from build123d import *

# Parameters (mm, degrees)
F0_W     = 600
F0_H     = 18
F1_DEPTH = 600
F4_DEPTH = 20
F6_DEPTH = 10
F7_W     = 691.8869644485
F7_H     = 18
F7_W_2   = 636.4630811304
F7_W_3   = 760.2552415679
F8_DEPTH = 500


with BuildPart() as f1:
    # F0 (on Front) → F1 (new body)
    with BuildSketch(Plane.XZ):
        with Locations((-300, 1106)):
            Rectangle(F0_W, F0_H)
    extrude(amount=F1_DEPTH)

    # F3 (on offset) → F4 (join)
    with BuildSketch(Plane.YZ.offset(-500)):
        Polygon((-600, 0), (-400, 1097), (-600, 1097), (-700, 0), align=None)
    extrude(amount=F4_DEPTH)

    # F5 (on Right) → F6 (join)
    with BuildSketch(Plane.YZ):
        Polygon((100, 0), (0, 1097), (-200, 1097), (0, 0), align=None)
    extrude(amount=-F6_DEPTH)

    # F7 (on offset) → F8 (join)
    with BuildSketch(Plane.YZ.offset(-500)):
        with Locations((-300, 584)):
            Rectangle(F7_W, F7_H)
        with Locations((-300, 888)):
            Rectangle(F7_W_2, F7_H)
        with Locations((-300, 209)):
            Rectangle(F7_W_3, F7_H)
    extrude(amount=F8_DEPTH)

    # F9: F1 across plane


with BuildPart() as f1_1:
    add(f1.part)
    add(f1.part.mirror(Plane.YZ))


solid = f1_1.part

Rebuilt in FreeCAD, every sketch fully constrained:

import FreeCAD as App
import Part
import Sketcher
from FreeCAD import Vector

doc = App.newDocument("Part")
body = doc.addObject("PartDesign::Body", "Body")

sketch1 = body.newObject("Sketcher::SketchObject", "Sketch")
sketch1.AttachmentSupport = (doc.getObject("XZ_Plane"), [""])
sketch1.MapMode = "FlatFace"
sketch1.addGeometry([
    Part.LineSegment(Vector(-600, 1115, 0), Vector(-600, 1097, 0)),
    Part.LineSegment(Vector(-600, 1097, 0), Vector(0, 1097, 0)),
    Part.LineSegment(Vector(0, 1097, 0), Vector(0, 1115, 0)),
    Part.LineSegment(Vector(0, 1115, 0), Vector(-600, 1115, 0)),
], False)
sketch1.addConstraint([
    Sketcher.Constraint("Coincident", 0, 2, 1, 1),
    Sketcher.Constraint("Coincident", 1, 2, 2, 1),
    Sketcher.Constraint("Coincident", 2, 2, 3, 1),
    Sketcher.Constraint("Coincident", 3, 2, 0, 1),
    Sketcher.Constraint("Vertical", 0),
    Sketcher.Constraint("Horizontal", 1),
    Sketcher.Constraint("Vertical", 2),
    Sketcher.Constraint("Horizontal", 3),
    Sketcher.Constraint("PointOnObject", 1, 2, -2),
    Sketcher.Constraint("DistanceX", 1, 1, 1, 2, 600.0),
    Sketcher.Constraint("DistanceY", 0, 2, 0, 1, 18.0),
    Sketcher.Constraint("DistanceY", -1, 1, 0, 2, 1097.0),
])
pad1 = body.newObject("PartDesign::Pad", "Pad")
pad1.Profile = sketch1
pad1.Length = 600

sketch2 = body.newObject("Sketcher::SketchObject", "Sketch001")
sketch2.AttachmentSupport = (doc.getObject("YZ_Plane"), [""])
sketch2.MapMode = "FlatFace"
sketch2.AttachmentOffset = App.Placement(Vector(0, 0, -500), App.Rotation())
sketch2.addGeometry([
    Part.LineSegment(Vector(-600, 0, 0), Vector(-400, 1097, 0)),
    Part.LineSegment(Vector(-400, 1097, 0), Vector(-600, 1097, 0)),
    Part.LineSegment(Vector(-600, 1097, 0), Vector(-700, 0, 0)),
    Part.LineSegment(Vector(-700, 0, 0), Vector(-600, 0, 0)),
], False)
sketch2.addConstraint([
    Sketcher.Constraint("Coincident", 0, 2, 1, 1),
    Sketcher.Constraint("Coincident", 1, 2, 2, 1),
    Sketcher.Constraint("Coincident", 2, 2, 3, 1),
    Sketcher.Constraint("Coincident", 3, 2, 0, 1),
    Sketcher.Constraint("Horizontal", 1),
    Sketcher.Constraint("Horizontal", 3),
    Sketcher.Constraint("PointOnObject", 2, 2, -1),
    Sketcher.Constraint("Vertical", 1, 2, 3, 2),
    Sketcher.Constraint("DistanceX", 1, 2, 1, 1, 200.0),
    Sketcher.Constraint("DistanceX", 3, 1, 3, 2, 100.0),
    Sketcher.Constraint("DistanceX", 0, 2, -1, 1, 400.0),
    Sketcher.Constraint("DistanceY", -1, 1, 0, 2, 1097.0),
])
pad2 = body.newObject("PartDesign::Pad", "Pad001")
pad2.Profile = sketch2
pad2.Length = 20

sketch3 = body.newObject("Sketcher::SketchObject", "Sketch002")
sketch3.AttachmentSupport = (doc.getObject("YZ_Plane"), [""])
sketch3.MapMode = "FlatFace"
sketch3.addGeometry([
    Part.LineSegment(Vector(100, 0, 0), Vector(0, 1097, 0)),
    Part.LineSegment(Vector(0, 1097, 0), Vector(-200, 1097, 0)),
    Part.LineSegment(Vector(-200, 1097, 0), Vector(0, 0, 0)),
    Part.LineSegment(Vector(0, 0, 0), Vector(100, 0, 0)),
], False)
sketch3.addConstraint([
    Sketcher.Constraint("Coincident", 0, 2, 1, 1),
    Sketcher.Constraint("Coincident", 1, 2, 2, 1),
    Sketcher.Constraint("Coincident", 2, 2, 3, 1),
    Sketcher.Constraint("Coincident", 3, 2, 0, 1),
    Sketcher.Constraint("Horizontal", 1),
    Sketcher.Constraint("Horizontal", 3),
    Sketcher.Constraint("Coincident", 2, 2, -1, 1),
    Sketcher.Constraint("PointOnObject", 0, 2, -2),
    Sketcher.Constraint("DistanceX", 1, 2, 1, 1, 200.0),
    Sketcher.Constraint("DistanceX", 3, 1, 3, 2, 100.0),
    Sketcher.Constraint("DistanceY", -1, 1, 0, 2, 1097.0),
])
pad3 = body.newObject("PartDesign::Pad", "Pad002")
pad3.Profile = sketch3
pad3.Length = 10
pad3.Reversed = True

sketch4 = body.newObject("Sketcher::SketchObject", "Sketch003")
sketch4.AttachmentSupport = (doc.getObject("YZ_Plane"), [""])
sketch4.MapMode = "FlatFace"
sketch4.AttachmentOffset = App.Placement(Vector(0, 0, -500), App.Rotation())
sketch4.addGeometry([
    Part.LineSegment(Vector(-645.943482, 593, 0), Vector(-645.943482, 575, 0)),
    Part.LineSegment(Vector(-645.943482, 575, 0), Vector(45.943482, 575, 0)),
    Part.LineSegment(Vector(45.943482, 575, 0), Vector(45.943482, 593, 0)),
    Part.LineSegment(Vector(45.943482, 593, 0), Vector(-645.943482, 593, 0)),
    Part.LineSegment(Vector(-618.231541, 897, 0), Vector(-618.231541, 879, 0)),
    Part.LineSegment(Vector(-618.231541, 879, 0), Vector(18.231541, 879, 0)),
    Part.LineSegment(Vector(18.231541, 879, 0), Vector(18.231541, 897, 0)),
    Part.LineSegment(Vector(18.231541, 897, 0), Vector(-618.231541, 897, 0)),
    Part.LineSegment(Vector(-680.127621, 218, 0), Vector(-680.127621, 200, 0)),
    Part.LineSegment(Vector(-680.127621, 200, 0), Vector(80.127621, 200, 0)),
    Part.LineSegment(Vector(80.127621, 200, 0), Vector(80.127621, 218, 0)),
    Part.LineSegment(Vector(80.127621, 218, 0), Vector(-680.127621, 218, 0)),
], False)
sketch4.addConstraint([
    Sketcher.Constraint("Coincident", 0, 2, 1, 1),
    Sketcher.Constraint("Coincident", 1, 2, 2, 1),
    Sketcher.Constraint("Coincident", 2, 2, 3, 1),
    Sketcher.Constraint("Coincident", 3, 2, 0, 1),
    Sketcher.Constraint("Coincident", 4, 2, 5, 1),
    Sketcher.Constraint("Coincident", 5, 2, 6, 1),
    Sketcher.Constraint("Coincident", 6, 2, 7, 1),
    Sketcher.Constraint("Coincident", 7, 2, 4, 1),
    Sketcher.Constraint("Coincident", 8, 2, 9, 1),
    Sketcher.Constraint("Coincident", 9, 2, 10, 1),
    Sketcher.Constraint("Coincident", 10, 2, 11, 1),
    Sketcher.Constraint("Coincident", 11, 2, 8, 1),
    Sketcher.Constraint("Vertical", 0),
    Sketcher.Constraint("Horizontal", 1),
    Sketcher.Constraint("Vertical", 2),
    Sketcher.Constraint("Horizontal", 3),
    Sketcher.Constraint("Vertical", 4),
    Sketcher.Constraint("Horizontal", 5),
    Sketcher.Constraint("Vertical", 6),
    Sketcher.Constraint("Horizontal", 7),
    Sketcher.Constraint("Vertical", 8),
    Sketcher.Constraint("Horizontal", 9),
    Sketcher.Constraint("Vertical", 10),
    Sketcher.Constraint("Horizontal", 11),
    Sketcher.Constraint("Equal", 2, 4),
    Sketcher.Constraint("Equal", 6, 8),
    Sketcher.Constraint("DistanceY", 0, 2, 0, 1, 18.0),
    Sketcher.Constraint("DistanceY", -1, 1, 0, 2, 575.0),
    Sketcher.Constraint("DistanceY", -1, 1, 4, 2, 879.0),
    Sketcher.Constraint("DistanceY", -1, 1, 8, 2, 200.0),
    Sketcher.Constraint("DistanceX", 5, 1, 5, 2, 636.463081),
    Sketcher.Constraint("DistanceX", 9, 1, 9, 2, 760.255242),
    Sketcher.Constraint("DistanceX", 1, 1, 1, 2, 691.886964),
    Sketcher.Constraint("DistanceX", 4, 2, -1, 1, 618.231541),
    Sketcher.Constraint("DistanceX", 8, 2, -1, 1, 680.127621),
    Sketcher.Constraint("DistanceX", 3, 2, 4, 2, 27.711942),
])
pad4 = body.newObject("PartDesign::Pad", "Pad003")
pad4.Profile = sketch4
pad4.Length = 500
body2 = doc.addObject("PartDesign::Body", "Body001")
doc.recompute()

body2.BaseFeature = body
doc.recompute()

mirroring = doc.addObject("Part::Mirroring", "Mirroring")
mirroring.Source = body
mirroring.Base = Vector(0, 0, 0)
mirroring.Normal = Vector(1, 0, 0)
body3 = doc.addObject("PartDesign::Body", "Body002")
body3.BaseFeature = mirroring
boolean = body2.newObject("PartDesign::Boolean", "Boolean")
boolean.Type = "Fuse"
boolean.addObjects([body3])
doc.recompute()
mirroring.Visibility = False

doc.recompute()
